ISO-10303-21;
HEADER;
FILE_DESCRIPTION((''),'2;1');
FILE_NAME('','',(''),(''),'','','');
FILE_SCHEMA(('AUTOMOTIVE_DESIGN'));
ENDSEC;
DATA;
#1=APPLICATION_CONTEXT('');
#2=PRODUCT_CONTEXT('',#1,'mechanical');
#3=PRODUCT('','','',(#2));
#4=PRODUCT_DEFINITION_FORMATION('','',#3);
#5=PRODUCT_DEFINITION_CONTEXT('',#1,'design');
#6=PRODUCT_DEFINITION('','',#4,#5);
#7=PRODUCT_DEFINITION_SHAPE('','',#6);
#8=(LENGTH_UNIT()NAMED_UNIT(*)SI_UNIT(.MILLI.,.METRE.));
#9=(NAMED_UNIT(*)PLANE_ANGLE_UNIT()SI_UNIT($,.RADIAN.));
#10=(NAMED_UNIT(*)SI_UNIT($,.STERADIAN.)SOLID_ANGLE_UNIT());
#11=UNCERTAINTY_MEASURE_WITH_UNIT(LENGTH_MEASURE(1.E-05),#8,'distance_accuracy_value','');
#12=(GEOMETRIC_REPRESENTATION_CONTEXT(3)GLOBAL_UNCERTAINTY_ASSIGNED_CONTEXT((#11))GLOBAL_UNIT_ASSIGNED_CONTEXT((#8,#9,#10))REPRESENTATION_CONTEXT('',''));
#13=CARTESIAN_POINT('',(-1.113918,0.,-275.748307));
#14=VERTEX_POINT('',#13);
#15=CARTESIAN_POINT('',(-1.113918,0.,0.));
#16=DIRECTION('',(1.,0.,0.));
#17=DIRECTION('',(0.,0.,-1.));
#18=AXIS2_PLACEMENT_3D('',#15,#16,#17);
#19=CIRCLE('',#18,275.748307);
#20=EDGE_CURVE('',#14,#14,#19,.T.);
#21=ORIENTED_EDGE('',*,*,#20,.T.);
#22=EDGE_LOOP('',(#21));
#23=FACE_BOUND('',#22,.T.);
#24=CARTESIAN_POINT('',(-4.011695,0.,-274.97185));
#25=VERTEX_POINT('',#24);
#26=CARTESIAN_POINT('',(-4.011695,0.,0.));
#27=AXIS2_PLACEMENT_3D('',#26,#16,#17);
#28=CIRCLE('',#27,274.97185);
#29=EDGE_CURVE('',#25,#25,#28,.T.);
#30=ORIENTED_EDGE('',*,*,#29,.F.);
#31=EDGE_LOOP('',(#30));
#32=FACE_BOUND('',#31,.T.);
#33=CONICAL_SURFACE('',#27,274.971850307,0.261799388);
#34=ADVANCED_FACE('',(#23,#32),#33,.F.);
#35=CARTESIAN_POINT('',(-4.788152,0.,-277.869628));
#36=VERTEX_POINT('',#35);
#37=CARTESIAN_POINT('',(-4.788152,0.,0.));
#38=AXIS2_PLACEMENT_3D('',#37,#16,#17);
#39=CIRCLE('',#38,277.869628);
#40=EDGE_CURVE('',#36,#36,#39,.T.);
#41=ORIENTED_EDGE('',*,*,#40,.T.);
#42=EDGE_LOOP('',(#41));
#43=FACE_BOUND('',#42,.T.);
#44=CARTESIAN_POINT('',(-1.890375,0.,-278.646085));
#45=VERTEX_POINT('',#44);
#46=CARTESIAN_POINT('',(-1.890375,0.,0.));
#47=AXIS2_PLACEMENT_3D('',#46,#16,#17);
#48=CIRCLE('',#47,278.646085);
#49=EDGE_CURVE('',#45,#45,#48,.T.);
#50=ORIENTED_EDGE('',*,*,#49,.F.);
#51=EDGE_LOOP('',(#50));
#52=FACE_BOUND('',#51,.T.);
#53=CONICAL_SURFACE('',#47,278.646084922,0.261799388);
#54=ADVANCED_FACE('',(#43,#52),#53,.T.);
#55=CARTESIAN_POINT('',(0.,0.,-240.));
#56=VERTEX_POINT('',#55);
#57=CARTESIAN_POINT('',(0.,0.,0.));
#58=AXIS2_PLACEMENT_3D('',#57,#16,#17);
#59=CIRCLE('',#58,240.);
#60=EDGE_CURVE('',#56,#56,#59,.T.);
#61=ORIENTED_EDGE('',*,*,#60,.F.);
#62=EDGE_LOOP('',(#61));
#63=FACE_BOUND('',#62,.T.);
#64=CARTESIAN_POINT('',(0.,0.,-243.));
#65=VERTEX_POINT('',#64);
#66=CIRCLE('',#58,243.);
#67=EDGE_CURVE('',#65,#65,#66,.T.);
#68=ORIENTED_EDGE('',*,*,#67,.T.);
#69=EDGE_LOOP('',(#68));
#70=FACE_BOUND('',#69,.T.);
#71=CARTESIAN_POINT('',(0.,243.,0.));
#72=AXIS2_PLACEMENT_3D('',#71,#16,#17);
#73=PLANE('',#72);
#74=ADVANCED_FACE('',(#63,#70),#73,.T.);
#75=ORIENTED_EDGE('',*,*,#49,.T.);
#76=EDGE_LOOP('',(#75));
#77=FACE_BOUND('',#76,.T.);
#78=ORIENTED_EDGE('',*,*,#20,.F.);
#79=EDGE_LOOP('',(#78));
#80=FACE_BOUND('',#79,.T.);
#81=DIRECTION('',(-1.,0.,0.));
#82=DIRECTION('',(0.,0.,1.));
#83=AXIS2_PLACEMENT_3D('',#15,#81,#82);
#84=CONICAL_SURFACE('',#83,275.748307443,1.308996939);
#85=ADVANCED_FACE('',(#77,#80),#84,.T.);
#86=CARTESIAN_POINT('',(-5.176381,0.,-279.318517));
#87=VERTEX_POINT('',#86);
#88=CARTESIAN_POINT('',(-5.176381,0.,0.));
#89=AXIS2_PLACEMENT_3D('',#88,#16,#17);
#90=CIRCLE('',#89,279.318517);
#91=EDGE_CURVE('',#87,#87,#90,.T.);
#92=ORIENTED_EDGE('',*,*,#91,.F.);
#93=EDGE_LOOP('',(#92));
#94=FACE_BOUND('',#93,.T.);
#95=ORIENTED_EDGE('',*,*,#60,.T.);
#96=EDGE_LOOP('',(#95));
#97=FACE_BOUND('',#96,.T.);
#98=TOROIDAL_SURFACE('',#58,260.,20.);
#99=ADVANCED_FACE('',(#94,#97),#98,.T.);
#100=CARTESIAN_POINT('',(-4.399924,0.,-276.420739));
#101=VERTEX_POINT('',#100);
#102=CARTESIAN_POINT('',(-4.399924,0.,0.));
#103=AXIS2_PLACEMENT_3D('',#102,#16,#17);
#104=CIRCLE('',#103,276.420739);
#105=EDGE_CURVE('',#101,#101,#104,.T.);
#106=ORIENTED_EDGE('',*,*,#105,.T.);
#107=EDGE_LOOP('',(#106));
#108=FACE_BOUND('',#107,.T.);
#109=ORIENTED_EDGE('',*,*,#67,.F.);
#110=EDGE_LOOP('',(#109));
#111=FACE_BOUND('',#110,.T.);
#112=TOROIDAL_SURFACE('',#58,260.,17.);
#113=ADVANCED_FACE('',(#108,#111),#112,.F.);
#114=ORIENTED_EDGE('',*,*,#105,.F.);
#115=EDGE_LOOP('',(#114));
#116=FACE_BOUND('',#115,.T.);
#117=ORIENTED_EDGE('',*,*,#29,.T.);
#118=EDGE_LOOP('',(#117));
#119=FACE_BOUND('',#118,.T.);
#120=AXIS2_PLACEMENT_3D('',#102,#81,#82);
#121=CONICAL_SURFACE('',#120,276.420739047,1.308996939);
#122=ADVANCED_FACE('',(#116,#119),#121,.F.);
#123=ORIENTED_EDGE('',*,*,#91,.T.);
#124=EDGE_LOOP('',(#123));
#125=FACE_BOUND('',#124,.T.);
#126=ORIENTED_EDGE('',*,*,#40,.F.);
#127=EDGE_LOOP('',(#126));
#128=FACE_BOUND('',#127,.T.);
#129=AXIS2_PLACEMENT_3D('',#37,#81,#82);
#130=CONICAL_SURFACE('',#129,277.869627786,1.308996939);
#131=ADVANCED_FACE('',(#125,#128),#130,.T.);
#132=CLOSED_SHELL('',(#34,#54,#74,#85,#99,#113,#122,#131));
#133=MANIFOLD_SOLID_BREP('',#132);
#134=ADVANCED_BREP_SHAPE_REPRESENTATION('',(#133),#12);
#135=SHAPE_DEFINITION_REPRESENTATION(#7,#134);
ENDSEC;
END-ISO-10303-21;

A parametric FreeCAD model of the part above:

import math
import FreeCAD as App
import Part
import Sketcher
from FreeCAD import Vector
Q = App.Units.Quantity

doc = App.newDocument("Part")
body = doc.addObject("PartDesign::Body", "Body")

sketch1 = doc.addObject("Sketcher::SketchObject", "Sketch")
body.addObject(sketch1)
sketch1.AttachmentSupport = (doc.XY_Plane, [""])
sketch1.MapMode = "FlatFace"
sketch1.addGeometry(Part.LineSegment(Vector(-4.8, 277.9, 0), Vector(-5.2, 279.3, 0)), False)
sketch1.addGeometry(Part.ArcOfCircle(Part.Circle(Vector(0, 260, 0), Vector(0, 0, 1), 20), math.radians(105), math.radians(270)), False)
sketch1.addGeometry(Part.LineSegment(Vector(0, 240, 0), Vector(0, 243, 0)), False)
sketch1.addGeometry(Part.ArcOfCircle(Part.Circle(Vector(0, 260, 0), Vector(0, 0, 1), 17), math.radians(105), math.radians(270)), False)
sketch1.addGeometry(Part.LineSegment(Vector(-4.4, 276.4, 0), Vector(-4, 275, 0)), False)
sketch1.addGeometry(Part.LineSegment(Vector(-4, 275, 0), Vector(-1.1, 275.7, 0)), False)
sketch1.addGeometry(Part.LineSegment(Vector(-1.1, 275.7, 0), Vector(-1.9, 278.6, 0)), False)
sketch1.addGeometry(Part.LineSegment(Vector(-1.9, 278.6, 0), Vector(-4.8, 277.9, 0)), False)
sketch1.addConstraint(Sketcher.Constraint("Coincident", 0, 2, 1, 1))
sketch1.addConstraint(Sketcher.Constraint("Coincident", 1, 2, 2, 1))
sketch1.addConstraint(Sketcher.Constraint("Coincident", 2, 2, 3, 2))
sketch1.addConstraint(Sketcher.Constraint("Coincident", 3, 1, 4, 1))
sketch1.addConstraint(Sketcher.Constraint("Coincident", 4, 2, 5, 1))
sketch1.addConstraint(Sketcher.Constraint("Coincident", 5, 2, 6, 1))
sketch1.addConstraint(Sketcher.Constraint("Coincident", 6, 2, 7, 1))
sketch1.addConstraint(Sketcher.Constraint("Coincident", 7, 2, 0, 1))
sketch1.addConstraint(Sketcher.Constraint("Vertical", 2))
sketch1.addConstraint(Sketcher.Constraint("Coincident", 3, 3, 1, 3))
sketch1.addConstraint(Sketcher.Constraint("PointOnObject", 1, 3, -2))
sketch1.addConstraint(Sketcher.Constraint("PointOnObject", 1, 2, -2))
sketch1.addConstraint(Sketcher.Constraint("Parallel", 0, 4))
sketch1.addConstraint(Sketcher.Constraint("Perpendicular", 4, 5))
sketch1.addConstraint(Sketcher.Constraint("Perpendicular", 5, 6))
sketch1.addConstraint(Sketcher.Constraint("Perpendicular", 6, 7))
sketch1.addConstraint(Sketcher.Constraint("Equal", 0, 4))
sketch1.addConstraint(Sketcher.Constraint("Equal", 5, 6))
sketch1.addConstraint(Sketcher.Constraint("Equal", 6, 7))
sketch1.addConstraint(Sketcher.Constraint("Radius", 1, Q("20 mm")))
sketch1.addConstraint(Sketcher.Constraint("Radius", 3, Q("17 mm")))
sketch1.addConstraint(Sketcher.Constraint("Angle", 0, Q("105 deg")))
sketch1.addConstraint(Sketcher.Constraint("DistanceY", -1, 1, 1, 3, Q("260 mm")))
sketch1.addConstraint(Sketcher.Constraint("Distance", 0, Q("1.5 mm")))
sketch1.addConstraint(Sketcher.Constraint("DistanceX", 0, 2, -1, 1, Q("5.176381 mm")))
revolution = doc.addObject("PartDesign::Revolution", "Revolution")
body.addObject(revolution)
revolution.Profile = sketch1
revolution.ReferenceAxis = (sketch1, ["H_Axis"])
revolution.Angle = 360

doc.recompute()
